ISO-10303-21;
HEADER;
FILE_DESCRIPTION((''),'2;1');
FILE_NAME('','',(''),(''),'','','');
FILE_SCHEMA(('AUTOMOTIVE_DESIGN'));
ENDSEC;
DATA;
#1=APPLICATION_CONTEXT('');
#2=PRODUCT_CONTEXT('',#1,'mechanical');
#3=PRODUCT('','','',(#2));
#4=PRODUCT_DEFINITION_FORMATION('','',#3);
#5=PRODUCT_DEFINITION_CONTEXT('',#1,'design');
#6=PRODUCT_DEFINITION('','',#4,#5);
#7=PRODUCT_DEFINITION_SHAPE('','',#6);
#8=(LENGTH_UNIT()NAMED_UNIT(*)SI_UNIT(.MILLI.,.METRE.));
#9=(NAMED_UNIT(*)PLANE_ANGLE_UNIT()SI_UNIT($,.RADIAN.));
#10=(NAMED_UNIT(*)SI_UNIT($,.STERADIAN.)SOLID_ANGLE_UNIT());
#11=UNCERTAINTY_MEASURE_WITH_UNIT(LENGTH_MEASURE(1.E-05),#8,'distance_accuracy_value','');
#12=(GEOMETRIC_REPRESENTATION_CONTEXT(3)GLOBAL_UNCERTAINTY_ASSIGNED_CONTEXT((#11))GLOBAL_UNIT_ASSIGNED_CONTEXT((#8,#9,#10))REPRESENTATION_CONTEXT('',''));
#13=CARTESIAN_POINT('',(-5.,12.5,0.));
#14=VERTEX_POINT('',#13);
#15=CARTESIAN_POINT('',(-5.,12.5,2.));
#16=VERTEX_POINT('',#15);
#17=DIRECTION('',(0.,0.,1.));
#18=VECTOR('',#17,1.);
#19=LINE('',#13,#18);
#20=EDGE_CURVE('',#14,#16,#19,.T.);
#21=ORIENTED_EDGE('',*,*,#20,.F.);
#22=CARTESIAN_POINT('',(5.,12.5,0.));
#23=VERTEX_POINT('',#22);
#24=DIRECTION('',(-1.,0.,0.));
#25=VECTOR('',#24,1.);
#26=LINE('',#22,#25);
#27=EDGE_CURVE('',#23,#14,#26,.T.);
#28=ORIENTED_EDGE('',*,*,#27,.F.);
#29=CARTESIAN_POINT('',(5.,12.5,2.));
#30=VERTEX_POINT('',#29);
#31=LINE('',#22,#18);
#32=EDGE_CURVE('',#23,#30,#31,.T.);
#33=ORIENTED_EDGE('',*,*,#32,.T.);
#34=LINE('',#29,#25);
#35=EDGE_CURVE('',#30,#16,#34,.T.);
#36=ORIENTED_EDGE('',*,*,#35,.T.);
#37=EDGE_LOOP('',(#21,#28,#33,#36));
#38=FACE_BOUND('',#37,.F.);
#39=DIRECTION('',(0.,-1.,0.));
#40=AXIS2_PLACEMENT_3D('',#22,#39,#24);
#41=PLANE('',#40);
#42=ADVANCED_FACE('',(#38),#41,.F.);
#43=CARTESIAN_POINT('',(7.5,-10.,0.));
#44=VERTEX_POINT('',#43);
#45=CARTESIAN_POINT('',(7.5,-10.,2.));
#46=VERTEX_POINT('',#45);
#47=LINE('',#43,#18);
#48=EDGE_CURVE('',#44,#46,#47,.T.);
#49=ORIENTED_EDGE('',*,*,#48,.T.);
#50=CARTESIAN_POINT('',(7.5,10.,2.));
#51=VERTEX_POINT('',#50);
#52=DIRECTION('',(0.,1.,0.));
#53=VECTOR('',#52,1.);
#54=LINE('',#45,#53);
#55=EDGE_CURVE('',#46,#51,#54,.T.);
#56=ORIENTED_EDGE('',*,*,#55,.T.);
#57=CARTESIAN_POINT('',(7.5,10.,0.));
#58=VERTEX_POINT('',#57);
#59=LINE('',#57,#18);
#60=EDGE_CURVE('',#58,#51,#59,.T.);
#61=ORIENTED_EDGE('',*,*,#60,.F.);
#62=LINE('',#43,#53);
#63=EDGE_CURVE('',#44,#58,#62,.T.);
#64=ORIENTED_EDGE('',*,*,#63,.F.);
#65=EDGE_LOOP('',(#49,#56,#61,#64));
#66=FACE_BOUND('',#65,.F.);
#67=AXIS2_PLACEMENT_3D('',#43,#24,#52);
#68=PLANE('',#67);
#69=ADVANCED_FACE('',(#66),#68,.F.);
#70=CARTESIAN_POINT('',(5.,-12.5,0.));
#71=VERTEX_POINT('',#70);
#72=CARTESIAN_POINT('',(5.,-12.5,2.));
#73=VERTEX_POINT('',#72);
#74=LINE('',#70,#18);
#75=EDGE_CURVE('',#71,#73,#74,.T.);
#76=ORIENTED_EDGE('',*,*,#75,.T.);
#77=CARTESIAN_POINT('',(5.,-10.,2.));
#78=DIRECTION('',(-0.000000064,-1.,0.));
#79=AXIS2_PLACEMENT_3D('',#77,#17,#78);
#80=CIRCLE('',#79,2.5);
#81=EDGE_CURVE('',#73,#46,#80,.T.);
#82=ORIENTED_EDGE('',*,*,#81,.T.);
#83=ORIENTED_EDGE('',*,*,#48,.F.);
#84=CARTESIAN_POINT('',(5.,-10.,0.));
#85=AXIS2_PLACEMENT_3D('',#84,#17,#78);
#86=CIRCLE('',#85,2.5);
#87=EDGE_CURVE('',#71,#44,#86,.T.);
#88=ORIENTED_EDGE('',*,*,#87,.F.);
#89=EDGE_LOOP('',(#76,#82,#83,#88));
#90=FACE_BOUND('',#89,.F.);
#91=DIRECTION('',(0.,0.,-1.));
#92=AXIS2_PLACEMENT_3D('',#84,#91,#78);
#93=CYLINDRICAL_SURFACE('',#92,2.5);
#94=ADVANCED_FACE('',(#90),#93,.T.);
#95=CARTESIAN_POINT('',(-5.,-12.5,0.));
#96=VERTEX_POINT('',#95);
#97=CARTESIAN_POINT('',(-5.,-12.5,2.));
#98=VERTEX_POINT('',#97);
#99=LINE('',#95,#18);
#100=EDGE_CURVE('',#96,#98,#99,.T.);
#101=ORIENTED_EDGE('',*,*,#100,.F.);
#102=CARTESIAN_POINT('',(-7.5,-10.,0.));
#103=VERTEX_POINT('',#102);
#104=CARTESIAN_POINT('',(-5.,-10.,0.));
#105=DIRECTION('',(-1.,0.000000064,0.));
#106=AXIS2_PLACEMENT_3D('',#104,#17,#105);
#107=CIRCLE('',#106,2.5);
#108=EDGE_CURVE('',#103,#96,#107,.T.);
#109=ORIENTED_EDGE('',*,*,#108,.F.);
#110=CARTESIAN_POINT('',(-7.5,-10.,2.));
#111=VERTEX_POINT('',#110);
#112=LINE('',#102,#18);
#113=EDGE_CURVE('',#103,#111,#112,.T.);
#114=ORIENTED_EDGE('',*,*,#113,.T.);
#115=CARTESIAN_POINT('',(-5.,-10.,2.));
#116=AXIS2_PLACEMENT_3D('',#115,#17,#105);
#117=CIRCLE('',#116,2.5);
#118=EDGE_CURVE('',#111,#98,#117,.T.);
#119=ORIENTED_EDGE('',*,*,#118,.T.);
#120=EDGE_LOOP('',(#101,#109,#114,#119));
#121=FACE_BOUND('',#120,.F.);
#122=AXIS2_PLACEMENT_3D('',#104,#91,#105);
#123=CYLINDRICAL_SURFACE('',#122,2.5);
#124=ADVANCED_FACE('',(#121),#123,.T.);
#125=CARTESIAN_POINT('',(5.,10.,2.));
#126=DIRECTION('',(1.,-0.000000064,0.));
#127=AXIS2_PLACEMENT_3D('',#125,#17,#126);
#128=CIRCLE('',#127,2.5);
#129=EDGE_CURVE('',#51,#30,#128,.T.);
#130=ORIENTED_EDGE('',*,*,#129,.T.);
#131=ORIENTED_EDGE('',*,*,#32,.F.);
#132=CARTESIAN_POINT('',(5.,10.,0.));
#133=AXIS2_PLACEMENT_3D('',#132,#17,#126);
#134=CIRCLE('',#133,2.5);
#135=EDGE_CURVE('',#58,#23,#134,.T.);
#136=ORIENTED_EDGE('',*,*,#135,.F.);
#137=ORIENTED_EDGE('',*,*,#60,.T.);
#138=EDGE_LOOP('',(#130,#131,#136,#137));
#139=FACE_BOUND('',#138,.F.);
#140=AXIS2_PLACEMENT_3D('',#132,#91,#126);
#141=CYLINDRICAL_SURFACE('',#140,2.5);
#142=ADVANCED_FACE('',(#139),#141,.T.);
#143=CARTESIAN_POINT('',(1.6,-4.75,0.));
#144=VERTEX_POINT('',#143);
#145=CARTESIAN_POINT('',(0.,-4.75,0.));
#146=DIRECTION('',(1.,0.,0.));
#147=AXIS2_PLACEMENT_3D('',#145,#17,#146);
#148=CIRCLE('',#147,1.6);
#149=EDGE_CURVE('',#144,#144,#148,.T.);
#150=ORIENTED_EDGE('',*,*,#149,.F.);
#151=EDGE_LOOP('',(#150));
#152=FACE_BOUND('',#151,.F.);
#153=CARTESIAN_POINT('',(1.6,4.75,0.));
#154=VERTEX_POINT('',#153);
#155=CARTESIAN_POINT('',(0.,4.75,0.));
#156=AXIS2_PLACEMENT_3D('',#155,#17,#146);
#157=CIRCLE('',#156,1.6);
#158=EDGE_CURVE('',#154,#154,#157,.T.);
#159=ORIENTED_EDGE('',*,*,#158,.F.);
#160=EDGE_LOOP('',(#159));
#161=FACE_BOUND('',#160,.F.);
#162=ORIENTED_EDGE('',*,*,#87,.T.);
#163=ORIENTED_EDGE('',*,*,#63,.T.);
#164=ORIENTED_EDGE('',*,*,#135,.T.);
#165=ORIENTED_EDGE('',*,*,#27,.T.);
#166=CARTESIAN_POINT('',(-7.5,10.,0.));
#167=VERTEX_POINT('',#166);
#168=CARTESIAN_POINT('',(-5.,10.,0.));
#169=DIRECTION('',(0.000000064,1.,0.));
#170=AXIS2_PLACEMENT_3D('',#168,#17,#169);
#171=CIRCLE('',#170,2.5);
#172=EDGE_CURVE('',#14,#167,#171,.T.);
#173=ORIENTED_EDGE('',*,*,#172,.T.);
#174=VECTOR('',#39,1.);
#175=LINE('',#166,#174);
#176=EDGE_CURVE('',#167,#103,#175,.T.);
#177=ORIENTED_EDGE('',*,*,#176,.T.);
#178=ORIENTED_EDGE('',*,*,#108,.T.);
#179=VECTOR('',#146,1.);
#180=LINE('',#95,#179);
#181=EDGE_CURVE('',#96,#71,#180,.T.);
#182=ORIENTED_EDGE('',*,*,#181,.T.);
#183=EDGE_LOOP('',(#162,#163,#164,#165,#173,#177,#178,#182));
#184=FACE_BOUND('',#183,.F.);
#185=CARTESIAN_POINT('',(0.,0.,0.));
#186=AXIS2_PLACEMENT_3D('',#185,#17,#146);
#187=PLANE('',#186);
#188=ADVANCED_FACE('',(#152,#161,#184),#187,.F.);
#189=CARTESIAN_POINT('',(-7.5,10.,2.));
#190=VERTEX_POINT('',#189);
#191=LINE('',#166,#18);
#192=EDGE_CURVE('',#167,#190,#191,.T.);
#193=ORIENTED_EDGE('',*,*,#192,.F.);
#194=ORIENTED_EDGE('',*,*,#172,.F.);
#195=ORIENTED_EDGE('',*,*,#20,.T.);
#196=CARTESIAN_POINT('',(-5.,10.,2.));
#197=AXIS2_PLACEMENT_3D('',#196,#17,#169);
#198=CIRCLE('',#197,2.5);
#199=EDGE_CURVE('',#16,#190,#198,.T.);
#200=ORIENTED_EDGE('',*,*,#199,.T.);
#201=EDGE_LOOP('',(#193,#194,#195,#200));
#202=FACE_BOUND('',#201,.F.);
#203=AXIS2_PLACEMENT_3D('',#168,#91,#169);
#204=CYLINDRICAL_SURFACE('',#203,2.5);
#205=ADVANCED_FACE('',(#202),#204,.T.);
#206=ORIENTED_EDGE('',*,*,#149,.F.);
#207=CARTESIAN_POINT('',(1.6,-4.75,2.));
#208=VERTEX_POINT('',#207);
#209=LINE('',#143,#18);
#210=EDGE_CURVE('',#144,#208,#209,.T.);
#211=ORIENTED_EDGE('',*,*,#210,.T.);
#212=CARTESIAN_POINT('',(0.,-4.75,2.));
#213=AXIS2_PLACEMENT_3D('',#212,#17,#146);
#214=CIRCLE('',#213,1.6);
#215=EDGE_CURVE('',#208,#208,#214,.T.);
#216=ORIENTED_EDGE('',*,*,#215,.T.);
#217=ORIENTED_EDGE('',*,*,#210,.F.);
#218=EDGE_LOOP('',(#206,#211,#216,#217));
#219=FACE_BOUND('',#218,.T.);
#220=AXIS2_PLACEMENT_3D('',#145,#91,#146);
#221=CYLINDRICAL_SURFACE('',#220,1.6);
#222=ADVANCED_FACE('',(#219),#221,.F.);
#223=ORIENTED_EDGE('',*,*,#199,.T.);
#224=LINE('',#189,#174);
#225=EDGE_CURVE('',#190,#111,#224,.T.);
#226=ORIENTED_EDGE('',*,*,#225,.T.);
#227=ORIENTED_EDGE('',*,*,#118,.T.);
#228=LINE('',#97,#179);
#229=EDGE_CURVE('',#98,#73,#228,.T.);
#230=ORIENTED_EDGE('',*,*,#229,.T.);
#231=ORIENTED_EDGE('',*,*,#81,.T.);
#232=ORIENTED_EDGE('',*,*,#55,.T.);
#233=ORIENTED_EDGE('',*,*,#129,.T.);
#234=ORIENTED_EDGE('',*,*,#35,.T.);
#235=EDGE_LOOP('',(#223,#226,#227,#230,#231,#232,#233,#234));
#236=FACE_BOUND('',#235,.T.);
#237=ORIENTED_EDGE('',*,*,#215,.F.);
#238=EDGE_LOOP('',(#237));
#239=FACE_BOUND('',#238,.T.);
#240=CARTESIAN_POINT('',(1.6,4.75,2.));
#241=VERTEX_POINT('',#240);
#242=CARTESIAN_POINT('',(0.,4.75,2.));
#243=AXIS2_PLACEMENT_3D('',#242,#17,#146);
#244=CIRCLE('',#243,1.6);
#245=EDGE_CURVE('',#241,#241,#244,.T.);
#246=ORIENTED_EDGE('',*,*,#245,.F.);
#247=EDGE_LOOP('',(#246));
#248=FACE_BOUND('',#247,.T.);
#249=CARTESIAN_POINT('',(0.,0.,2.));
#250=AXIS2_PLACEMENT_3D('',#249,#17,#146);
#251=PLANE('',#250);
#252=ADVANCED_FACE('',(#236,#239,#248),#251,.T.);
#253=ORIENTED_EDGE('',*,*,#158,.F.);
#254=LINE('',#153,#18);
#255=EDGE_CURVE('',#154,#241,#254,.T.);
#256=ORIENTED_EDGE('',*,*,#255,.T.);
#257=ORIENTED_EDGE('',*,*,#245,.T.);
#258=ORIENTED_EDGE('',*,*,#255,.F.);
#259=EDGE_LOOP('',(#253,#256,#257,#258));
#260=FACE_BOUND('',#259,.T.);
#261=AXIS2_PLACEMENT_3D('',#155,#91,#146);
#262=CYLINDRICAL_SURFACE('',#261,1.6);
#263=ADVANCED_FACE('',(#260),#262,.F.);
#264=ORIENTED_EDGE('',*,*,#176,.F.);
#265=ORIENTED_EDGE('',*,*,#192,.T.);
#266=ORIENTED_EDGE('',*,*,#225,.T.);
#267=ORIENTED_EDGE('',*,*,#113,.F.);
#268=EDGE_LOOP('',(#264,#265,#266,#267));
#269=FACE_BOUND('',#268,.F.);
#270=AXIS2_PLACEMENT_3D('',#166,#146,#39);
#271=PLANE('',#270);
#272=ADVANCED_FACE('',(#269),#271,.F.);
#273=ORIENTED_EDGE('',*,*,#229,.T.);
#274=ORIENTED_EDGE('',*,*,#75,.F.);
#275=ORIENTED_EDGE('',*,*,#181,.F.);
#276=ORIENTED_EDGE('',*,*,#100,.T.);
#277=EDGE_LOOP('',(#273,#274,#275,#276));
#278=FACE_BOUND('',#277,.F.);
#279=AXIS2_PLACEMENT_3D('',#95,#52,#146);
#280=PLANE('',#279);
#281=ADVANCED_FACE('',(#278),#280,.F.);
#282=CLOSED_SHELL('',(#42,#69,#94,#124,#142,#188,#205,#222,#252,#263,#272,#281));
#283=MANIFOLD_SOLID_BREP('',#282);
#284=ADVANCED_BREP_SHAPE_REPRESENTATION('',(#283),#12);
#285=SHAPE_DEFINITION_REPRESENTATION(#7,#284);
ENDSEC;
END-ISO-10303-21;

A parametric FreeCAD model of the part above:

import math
import FreeCAD as App
import Part
import Sketcher
from FreeCAD import Vector
Q = App.Units.Quantity

doc = App.newDocument("Part")
body = doc.addObject("PartDesign::Body", "Body")

sketch1 = doc.addObject("Sketcher::SketchObject", "Sketch")
body.addObject(sketch1)
sketch1.AttachmentSupport = (doc.XY_Plane, [""])
sketch1.MapMode = "FlatFace"
sketch1.addGeometry([
    Part.LineSegment(Vector(-7.5, 10, 0), Vector(-7.5, -10, 0)),
    Part.ArcOfCircle(Part.Circle(Vector(-5, -10, 0), Vector(0, 0, 1), 2.5), math.radians(179.999996), math.radians(270.000004)),
    Part.LineSegment(Vector(-5, -12.5, 0), Vector(5, -12.5, 0)),
    Part.ArcOfCircle(Part.Circle(Vector(5, -10, 0), Vector(0, 0, 1), 2.5), math.radians(-90.000004), math.radians(0.000004)),
    Part.LineSegment(Vector(7.5, -10, 0), Vector(7.5, 10, 0)),
    Part.ArcOfCircle(Part.Circle(Vector(5, 10, 0), Vector(0, 0, 1), 2.5), math.radians(-0.000004), math.radians(90.000004)),
    Part.LineSegment(Vector(5, 12.5, 0), Vector(-5, 12.5, 0)),
    Part.ArcOfCircle(Part.Circle(Vector(-5, 10, 0), Vector(0, 0, 1), 2.5), math.radians(89.999996), math.radians(180.000004)),
    Part.Circle(Vector(0, -4.75, 0), Vector(0, 0, 1), 1.6),
    Part.Circle(Vector(0, 4.75, 0), Vector(0, 0, 1), 1.6),
], False)
sketch1.addConstraint([
    Sketcher.Constraint("Tangent", 0, 2, 1, 1),
    Sketcher.Constraint("Tangent", 1, 2, 2, 1),
    Sketcher.Constraint("Tangent", 2, 2, 3, 1),
    Sketcher.Constraint("Tangent", 3, 2, 4, 1),
    Sketcher.Constraint("Tangent", 4, 2, 5, 1),
    Sketcher.Constraint("Tangent", 5, 2, 6, 1),
    Sketcher.Constraint("Tangent", 6, 2, 7, 1),
    Sketcher.Constraint("Tangent", 7, 2, 0, 1),
    Sketcher.Constraint("Vertical", 0),
    Sketcher.Constraint("Horizontal", 2),
    Sketcher.Constraint("Vertical", 4),
    Sketcher.Constraint("Horizontal", 6),
    Sketcher.Constraint("Equal", 1, 3),
    Sketcher.Constraint("Equal", 3, 5),
    Sketcher.Constraint("Equal", 5, 7),
    Sketcher.Constraint("Equal", 8, 9),
    Sketcher.Constraint("Symmetric", 1, 3, 5, 3, -1, 1),
    Sketcher.Constraint("Symmetric", 8, 3, 9, 3, -1, 1),
    Sketcher.Constraint("PointOnObject", 8, 3, -2),
    Sketcher.Constraint("Diameter", 8, Q("3.2 mm")),
    Sketcher.Constraint("Radius", 1, Q("2.5 mm")),
    Sketcher.Constraint("DistanceX", 2, 1, 2, 2, Q("10 mm")),
    Sketcher.Constraint("DistanceY", 0, 2, 0, 1, Q("20 mm")),
    Sketcher.Constraint("DistanceY", 8, 3, 9, 3, Q("9.5 mm")),
])
pad1 = doc.addObject("PartDesign::Pad", "Pad")
body.addObject(pad1)
pad1.Profile = sketch1
pad1.Length = 2

doc.recompute()
